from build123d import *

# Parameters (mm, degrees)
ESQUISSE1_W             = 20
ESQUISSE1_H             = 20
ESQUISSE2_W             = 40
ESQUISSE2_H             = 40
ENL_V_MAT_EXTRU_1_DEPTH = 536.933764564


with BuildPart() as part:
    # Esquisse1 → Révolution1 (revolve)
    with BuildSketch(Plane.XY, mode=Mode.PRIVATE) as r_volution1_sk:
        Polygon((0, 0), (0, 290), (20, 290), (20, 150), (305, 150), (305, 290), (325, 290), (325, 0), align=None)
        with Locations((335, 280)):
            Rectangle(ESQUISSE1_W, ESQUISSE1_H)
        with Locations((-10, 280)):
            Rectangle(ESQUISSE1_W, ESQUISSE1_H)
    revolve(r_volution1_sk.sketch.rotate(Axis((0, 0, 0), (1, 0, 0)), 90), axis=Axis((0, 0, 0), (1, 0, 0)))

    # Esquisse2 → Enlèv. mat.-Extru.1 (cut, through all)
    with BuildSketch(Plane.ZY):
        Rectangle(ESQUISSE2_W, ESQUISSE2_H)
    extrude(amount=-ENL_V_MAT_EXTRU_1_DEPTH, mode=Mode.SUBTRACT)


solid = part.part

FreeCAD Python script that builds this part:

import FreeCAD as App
import Part
import Sketcher

V = App.Vector

doc = App.newDocument("Part")
body = doc.addObject("PartDesign::Body", "Body")

sketch1 = body.newObject("Sketcher::SketchObject", "Sketch")
sketch1.AttachmentSupport = (doc.getObject("XY_Plane"), [""])
sketch1.MapMode = "FlatFace"
sketch1.addGeometry([
    Part.LineSegment(V(0, 270, 0), V(0, 0, 0)),
    Part.LineSegment(V(0, 0, 0), V(325, 0, 0)),
    Part.LineSegment(V(325, 0, 0), V(325, 270, 0)),
    Part.LineSegment(V(325, 270, 0), V(345, 270, 0)),
    Part.LineSegment(V(345, 270, 0), V(345, 290, 0)),
    Part.LineSegment(V(345, 290, 0), V(305, 290, 0)),
    Part.LineSegment(V(305, 290, 0), V(305, 150, 0)),
    Part.LineSegment(V(305, 150, 0), V(20, 150, 0)),
    Part.LineSegment(V(20, 150, 0), V(20, 290, 0)),
    Part.LineSegment(V(20, 290, 0), V(-20, 290, 0)),
    Part.LineSegment(V(-20, 290, 0), V(-20, 270, 0)),
    Part.LineSegment(V(-20, 270, 0), V(0, 270, 0)),
], False)
sketch1.addConstraint([
    Sketcher.Constraint("Coincident", 0, 2, 1, 1),
    Sketcher.Constraint("Coincident", 1, 2, 2, 1),
    Sketcher.Constraint("Coincident", 2, 2, 3, 1),
    Sketcher.Constraint("Coincident", 3, 2, 4, 1),
    Sketcher.Constraint("Coincident", 4, 2, 5, 1),
    Sketcher.Constraint("Coincident", 5, 2, 6, 1),
    Sketcher.Constraint("Coincident", 6, 2, 7, 1),
    Sketcher.Constraint("Coincident", 7, 2, 8, 1),
    Sketcher.Constraint("Coincident", 8, 2, 9, 1),
    Sketcher.Constraint("Coincident", 9, 2, 10, 1),
    Sketcher.Constraint("Coincident", 10, 2, 11, 1),
    Sketcher.Constraint("Coincident", 11, 2, 0, 1),
    Sketcher.Constraint("Vertical", 0),
    Sketcher.Constraint("Horizontal", 1),
    Sketcher.Constraint("Vertical", 2),
    Sketcher.Constraint("Horizontal", 3),
    Sketcher.Constraint("Vertical", 4),
    Sketcher.Constraint("Horizontal", 5),
    Sketcher.Constraint("Vertical", 6),
    Sketcher.Constraint("Horizontal", 7),
    Sketcher.Constraint("Vertical", 8),
    Sketcher.Constraint("Horizontal", 9),
    Sketcher.Constraint("Vertical", 10),
    Sketcher.Constraint("Horizontal", 11),
    Sketcher.Constraint("Coincident", 0, 2, -1, 1),
    Sketcher.Constraint("Horizontal", 5, 2, 8, 2),
    Sketcher.Constraint("Horizontal", 3, 2, 10, 2),
    Sketcher.Constraint("Equal", 5, 9),
    Sketcher.Constraint("Equal", 3, 11),
    Sketcher.Constraint("Equal", 11, 4),
    Sketcher.Constraint("DistanceX", 1, 1, 1, 2, 325.0),
    Sketcher.Constraint("DistanceX", 3, 1, 3, 2, 20.0),
    Sketcher.Constraint("DistanceX", 5, 2, 5, 1, 40.0),
    Sketcher.Constraint("DistanceY", 0, 2, 0, 1, 270.0),
    Sketcher.Constraint("DistanceY", 6, 2, 6, 1, 140.0),
])
revolution = body.newObject("PartDesign::Revolution", "Revolution")
revolution.Profile = sketch1
revolution.ReferenceAxis = (sketch1, ["H_Axis"])
revolution.Angle = 360

sketch2 = body.newObject("Sketcher::SketchObject", "Sketch001")
sketch2.AttachmentSupport = (doc.getObject("YZ_Plane"), [""])
sketch2.MapMode = "FlatFace"
sketch2.addGeometry([
    Part.LineSegment(V(20, -20, 0), V(-20, -20, 0)),
    Part.LineSegment(V(-20, -20, 0), V(-20, 20, 0)),
    Part.LineSegment(V(-20, 20, 0), V(20, 20, 0)),
    Part.LineSegment(V(20, 20, 0), V(20, -20, 0)),
], False)
sketch2.addConstraint([
    Sketcher.Constraint("Coincident", 0, 2, 1, 1),
    Sketcher.Constraint("Coincident", 1, 2, 2, 1),
    Sketcher.Constraint("Coincident", 2, 2, 3, 1),
    Sketcher.Constraint("Coincident", 3, 2, 0, 1),
    Sketcher.Constraint("Horizontal", 0),
    Sketcher.Constraint("Vertical", 1),
    Sketcher.Constraint("Horizontal", 2),
    Sketcher.Constraint("Vertical", 3),
    Sketcher.Constraint("Symmetric", 0, 2, 2, 2, -1, 1),
    Sketcher.Constraint("Equal", 2, 1),
    Sketcher.Constraint("DistanceX", 0, 2, 0, 1, 40.0),
])
pocket1 = body.newObject("PartDesign::Pocket", "Pocket")
pocket1.Profile = sketch2
pocket1.Type = "ThroughAll"
pocket1.Reversed = True

doc.recompute()
